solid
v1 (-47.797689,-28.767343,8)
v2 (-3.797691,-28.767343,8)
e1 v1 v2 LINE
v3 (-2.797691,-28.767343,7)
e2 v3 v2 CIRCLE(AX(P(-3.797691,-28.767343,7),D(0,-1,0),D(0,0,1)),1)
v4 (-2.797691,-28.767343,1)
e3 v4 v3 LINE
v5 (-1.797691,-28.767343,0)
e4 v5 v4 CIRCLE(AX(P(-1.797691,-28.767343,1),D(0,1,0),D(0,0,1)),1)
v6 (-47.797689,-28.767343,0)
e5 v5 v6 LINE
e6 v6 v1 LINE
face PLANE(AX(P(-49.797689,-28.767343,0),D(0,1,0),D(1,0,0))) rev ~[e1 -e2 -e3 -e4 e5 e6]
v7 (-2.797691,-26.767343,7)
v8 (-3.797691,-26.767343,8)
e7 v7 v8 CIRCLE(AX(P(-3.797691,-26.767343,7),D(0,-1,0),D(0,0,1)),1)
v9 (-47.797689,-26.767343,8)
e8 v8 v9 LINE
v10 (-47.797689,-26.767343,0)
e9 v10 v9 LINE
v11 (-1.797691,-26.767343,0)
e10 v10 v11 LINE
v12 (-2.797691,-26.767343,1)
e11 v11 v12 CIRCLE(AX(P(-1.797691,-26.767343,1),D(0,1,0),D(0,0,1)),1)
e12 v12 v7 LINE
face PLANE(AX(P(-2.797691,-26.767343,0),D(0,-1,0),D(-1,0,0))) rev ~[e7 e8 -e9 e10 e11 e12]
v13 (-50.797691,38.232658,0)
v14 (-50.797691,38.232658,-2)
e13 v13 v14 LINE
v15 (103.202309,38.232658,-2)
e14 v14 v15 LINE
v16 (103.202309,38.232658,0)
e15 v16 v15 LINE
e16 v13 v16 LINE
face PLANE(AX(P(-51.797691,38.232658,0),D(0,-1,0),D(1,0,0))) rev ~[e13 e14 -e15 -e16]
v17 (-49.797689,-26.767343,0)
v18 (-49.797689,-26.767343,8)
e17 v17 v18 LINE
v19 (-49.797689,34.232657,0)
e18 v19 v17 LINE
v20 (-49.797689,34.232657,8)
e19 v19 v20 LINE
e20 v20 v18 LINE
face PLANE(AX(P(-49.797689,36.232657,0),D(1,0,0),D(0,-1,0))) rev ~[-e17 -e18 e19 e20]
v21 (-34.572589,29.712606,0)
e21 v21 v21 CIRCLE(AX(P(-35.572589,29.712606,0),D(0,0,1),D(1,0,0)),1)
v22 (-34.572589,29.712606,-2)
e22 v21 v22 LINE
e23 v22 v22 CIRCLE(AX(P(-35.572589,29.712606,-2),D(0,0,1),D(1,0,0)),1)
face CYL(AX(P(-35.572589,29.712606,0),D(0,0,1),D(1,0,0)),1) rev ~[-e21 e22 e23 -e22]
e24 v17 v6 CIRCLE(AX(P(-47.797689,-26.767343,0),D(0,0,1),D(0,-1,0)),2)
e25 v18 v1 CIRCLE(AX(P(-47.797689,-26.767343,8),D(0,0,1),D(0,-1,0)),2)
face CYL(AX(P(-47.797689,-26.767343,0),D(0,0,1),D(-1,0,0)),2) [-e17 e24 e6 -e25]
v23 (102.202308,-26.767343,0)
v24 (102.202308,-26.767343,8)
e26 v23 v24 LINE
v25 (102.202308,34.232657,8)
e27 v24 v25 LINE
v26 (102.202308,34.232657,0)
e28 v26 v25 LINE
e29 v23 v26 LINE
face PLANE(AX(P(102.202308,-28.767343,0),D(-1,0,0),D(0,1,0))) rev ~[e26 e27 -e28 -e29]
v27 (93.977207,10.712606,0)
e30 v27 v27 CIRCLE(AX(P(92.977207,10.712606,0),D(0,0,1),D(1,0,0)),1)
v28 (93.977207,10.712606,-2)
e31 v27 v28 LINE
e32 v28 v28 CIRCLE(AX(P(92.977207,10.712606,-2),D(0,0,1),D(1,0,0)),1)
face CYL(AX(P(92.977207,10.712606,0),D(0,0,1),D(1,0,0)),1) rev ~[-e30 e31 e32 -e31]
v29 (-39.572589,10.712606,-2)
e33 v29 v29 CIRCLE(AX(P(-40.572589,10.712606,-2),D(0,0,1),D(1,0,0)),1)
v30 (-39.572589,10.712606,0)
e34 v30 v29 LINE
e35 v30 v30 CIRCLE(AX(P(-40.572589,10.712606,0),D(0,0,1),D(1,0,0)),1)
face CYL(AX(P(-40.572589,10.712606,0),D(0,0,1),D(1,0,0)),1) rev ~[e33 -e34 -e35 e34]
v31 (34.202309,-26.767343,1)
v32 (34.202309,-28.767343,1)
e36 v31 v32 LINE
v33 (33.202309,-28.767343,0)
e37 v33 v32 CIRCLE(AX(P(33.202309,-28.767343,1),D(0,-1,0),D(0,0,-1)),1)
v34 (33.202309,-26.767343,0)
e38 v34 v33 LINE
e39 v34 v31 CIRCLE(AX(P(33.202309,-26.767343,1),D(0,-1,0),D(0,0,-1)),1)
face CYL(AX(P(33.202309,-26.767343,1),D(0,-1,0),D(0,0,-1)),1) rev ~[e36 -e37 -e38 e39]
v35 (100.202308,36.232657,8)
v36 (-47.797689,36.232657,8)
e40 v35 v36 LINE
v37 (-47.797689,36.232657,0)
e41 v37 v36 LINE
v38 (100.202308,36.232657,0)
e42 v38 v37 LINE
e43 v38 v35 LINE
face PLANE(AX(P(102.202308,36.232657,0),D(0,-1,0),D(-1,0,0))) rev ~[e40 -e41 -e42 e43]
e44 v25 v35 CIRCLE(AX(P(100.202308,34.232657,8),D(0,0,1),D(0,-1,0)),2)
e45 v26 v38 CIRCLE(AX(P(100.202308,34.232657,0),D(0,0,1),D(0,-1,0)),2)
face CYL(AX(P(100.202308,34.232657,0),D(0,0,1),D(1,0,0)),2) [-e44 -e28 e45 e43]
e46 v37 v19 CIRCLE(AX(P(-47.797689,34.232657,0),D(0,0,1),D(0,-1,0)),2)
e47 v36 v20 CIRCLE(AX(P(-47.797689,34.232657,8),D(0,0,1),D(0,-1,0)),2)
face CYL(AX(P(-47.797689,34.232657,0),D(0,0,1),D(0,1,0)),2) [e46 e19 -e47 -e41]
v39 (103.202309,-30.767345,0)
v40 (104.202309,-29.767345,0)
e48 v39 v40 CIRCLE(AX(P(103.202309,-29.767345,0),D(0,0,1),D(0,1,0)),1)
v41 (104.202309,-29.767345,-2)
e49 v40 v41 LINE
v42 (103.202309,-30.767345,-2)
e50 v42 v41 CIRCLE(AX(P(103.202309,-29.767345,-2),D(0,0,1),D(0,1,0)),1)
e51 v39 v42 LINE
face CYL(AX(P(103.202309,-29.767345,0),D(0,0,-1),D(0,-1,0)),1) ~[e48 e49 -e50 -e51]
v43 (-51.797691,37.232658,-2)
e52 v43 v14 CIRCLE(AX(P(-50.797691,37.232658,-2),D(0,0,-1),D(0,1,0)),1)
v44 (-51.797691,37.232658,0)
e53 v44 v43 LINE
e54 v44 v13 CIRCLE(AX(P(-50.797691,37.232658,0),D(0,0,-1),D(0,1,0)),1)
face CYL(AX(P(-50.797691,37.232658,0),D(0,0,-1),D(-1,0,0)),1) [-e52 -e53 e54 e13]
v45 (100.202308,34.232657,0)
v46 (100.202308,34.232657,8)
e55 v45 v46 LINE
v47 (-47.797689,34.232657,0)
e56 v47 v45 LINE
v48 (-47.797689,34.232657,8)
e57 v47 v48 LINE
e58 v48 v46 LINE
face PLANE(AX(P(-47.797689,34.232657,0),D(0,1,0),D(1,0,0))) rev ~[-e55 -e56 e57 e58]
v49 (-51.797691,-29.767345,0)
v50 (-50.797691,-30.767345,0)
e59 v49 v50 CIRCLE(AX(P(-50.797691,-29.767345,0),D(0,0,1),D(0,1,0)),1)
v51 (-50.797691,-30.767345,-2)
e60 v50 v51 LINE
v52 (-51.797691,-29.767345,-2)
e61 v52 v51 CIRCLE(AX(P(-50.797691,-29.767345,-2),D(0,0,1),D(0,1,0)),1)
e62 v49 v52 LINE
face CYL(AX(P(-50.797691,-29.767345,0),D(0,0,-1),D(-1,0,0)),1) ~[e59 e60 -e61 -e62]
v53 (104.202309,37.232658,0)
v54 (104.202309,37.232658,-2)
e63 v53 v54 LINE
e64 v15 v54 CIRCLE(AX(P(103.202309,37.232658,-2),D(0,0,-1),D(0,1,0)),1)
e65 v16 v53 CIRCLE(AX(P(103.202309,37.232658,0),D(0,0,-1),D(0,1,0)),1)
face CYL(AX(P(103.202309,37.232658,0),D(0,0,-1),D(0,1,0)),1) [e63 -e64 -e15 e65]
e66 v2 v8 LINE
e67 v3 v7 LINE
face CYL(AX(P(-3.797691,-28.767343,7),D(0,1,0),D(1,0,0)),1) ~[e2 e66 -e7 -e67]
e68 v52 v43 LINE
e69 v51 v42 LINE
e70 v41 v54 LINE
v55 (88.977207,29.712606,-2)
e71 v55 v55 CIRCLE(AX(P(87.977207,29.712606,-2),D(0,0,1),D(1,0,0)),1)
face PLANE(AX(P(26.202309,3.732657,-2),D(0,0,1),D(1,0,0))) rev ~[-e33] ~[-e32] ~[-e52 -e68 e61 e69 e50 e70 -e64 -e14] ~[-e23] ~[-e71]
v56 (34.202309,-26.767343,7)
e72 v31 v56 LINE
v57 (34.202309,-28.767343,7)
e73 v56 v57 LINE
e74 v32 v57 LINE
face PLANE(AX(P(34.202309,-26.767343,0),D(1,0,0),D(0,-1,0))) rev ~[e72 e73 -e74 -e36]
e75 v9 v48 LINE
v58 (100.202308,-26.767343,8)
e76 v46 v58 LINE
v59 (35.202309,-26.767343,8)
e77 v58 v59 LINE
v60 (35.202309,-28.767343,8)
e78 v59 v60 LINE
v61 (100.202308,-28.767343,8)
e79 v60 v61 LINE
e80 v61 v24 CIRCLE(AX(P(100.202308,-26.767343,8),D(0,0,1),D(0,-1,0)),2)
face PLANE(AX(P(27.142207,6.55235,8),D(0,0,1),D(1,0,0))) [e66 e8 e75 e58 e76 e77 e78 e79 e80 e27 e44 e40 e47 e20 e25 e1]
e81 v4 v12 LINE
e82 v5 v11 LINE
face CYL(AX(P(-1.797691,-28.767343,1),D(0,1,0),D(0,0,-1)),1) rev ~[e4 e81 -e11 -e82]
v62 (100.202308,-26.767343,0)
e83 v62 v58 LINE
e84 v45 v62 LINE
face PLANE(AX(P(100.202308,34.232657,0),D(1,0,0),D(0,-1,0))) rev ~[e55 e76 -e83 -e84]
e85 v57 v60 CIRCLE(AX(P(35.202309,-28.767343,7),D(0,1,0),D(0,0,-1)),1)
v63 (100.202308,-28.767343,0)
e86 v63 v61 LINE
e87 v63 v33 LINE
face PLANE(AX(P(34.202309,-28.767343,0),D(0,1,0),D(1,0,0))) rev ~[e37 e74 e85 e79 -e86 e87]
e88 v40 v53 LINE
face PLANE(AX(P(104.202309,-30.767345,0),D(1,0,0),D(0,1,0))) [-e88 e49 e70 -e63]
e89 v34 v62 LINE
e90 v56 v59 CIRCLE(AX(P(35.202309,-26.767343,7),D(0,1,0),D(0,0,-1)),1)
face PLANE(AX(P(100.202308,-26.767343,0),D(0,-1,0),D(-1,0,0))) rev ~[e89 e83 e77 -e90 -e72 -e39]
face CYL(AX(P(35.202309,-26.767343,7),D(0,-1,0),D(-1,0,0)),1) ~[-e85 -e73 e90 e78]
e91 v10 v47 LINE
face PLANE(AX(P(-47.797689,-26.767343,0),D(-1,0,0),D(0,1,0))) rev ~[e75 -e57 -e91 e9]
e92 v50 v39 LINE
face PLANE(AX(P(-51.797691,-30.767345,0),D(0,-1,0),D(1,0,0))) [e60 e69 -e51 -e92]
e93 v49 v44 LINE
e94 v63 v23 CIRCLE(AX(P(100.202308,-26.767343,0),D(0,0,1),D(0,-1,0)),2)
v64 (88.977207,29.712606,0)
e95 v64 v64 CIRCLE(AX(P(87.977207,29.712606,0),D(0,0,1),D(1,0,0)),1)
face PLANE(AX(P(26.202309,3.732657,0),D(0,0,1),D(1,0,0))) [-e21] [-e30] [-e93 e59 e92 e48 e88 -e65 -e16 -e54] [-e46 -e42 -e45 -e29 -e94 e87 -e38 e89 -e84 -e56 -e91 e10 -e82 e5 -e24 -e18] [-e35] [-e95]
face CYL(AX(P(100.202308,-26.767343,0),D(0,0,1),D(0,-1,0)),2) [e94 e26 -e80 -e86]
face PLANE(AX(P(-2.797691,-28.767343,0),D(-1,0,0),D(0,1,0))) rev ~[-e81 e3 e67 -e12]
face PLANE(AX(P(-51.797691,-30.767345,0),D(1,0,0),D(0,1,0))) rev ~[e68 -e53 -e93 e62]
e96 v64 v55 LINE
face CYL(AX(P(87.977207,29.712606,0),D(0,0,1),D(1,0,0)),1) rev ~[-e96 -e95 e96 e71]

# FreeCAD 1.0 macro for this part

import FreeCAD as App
import Part
import Sketcher

V = App.Vector


def edges_at(feature, points):
    """Names of the edges that pass closest to the given points."""
    edges = feature.Shape.Edges
    near = lambda p: min(range(len(edges)), key=lambda i: edges[i].distToShape(Part.Vertex(*p))[0])
    return sorted({f"Edge{near(p) + 1}" for p in points})

doc = App.newDocument("Part")
body = doc.addObject("PartDesign::Body", "Body")

# Sketch on XY plane
sketch1 = body.newObject("Sketcher::SketchObject", "Sketch")
sketch1.AttachmentSupport = (doc.getObject("XY_Plane"), [""])
sketch1.MapMode = "FlatFace"
sketch1.addGeometry(Part.LineSegment(V(-51.797691, 38.232658, 0), V(-51.797691, -30.767345, 0)), False)
sketch1.addGeometry(Part.LineSegment(V(-51.797691, -30.767345, 0), V(104.202309, -30.767345, 0)), False)
sketch1.addGeometry(Part.LineSegment(V(104.202309, -30.767345, 0), V(104.202309, 38.232658, 0)), False)
sketch1.addGeometry(Part.LineSegment(V(104.202309, 38.232658, 0), V(-51.797691, 38.232658, 0)), False)
sketch1.addGeometry(Part.Circle(V(-40.572589, 10.712606, 0), V(0, 0, 1), 1), False)
sketch1.addGeometry(Part.Circle(V(-35.572589, 29.712606, 0), V(0, 0, 1), 1), False)
sketch1.addGeometry(Part.Circle(V(92.977207, 10.712606, 0), V(0, 0, 1), 1), False)
sketch1.addGeometry(Part.Circle(V(87.977207, 29.712606, 0), V(0, 0, 1), 1), False)
sketch1.addConstraint(Sketcher.Constraint("Coincident", 0, 2, 1, 1))
sketch1.addConstraint(Sketcher.Constraint("Coincident", 1, 2, 2, 1))
sketch1.addConstraint(Sketcher.Constraint("Coincident", 2, 2, 3, 1))
sketch1.addConstraint(Sketcher.Constraint("Coincident", 3, 2, 0, 1))
sketch1.addConstraint(Sketcher.Constraint("Vertical", 0))
sketch1.addConstraint(Sketcher.Constraint("Horizontal", 1))
sketch1.addConstraint(Sketcher.Constraint("Vertical", 2))
sketch1.addConstraint(Sketcher.Constraint("Horizontal", 3))
sketch1.addConstraint(Sketcher.Constraint("Equal", 4, 5))
sketch1.addConstraint(Sketcher.Constraint("Equal", 5, 6))
sketch1.addConstraint(Sketcher.Constraint("Equal", 6, 7))
sketch1.addConstraint(Sketcher.Constraint("Horizontal", 4, 3, 6, 3))
sketch1.addConstraint(Sketcher.Constraint("Horizontal", 5, 3, 7, 3))
sketch1.addConstraint(Sketcher.Constraint("Diameter", 4, 2.0))
sketch1.addConstraint(Sketcher.Constraint("DistanceX", 1, 1, 1, 2, 156.0))
sketch1.addConstraint(Sketcher.Constraint("DistanceX", 4, 3, 5, 3, 5.0))
sketch1.addConstraint(Sketcher.Constraint("DistanceY", 4, 3, 5, 3, 19.0))
sketch1.addConstraint(Sketcher.Constraint("DistanceX", 7, 3, 6, 3, 5.0))
sketch1.addConstraint(Sketcher.Constraint("DistanceX", 0, 2, 5, 3, 16.225102))
sketch1.addConstraint(Sketcher.Constraint("DistanceX", 0, 2, 6, 3, 144.774898))
sketch1.addConstraint(Sketcher.Constraint("DistanceY", 0, 2, 0, 1, 69.000003))
sketch1.addConstraint(Sketcher.Constraint("DistanceX", 4, 3, -1, 1, 40.572589))
sketch1.addConstraint(Sketcher.Constraint("DistanceY", -1, 1, 2, 2, 38.232658))
sketch1.addConstraint(Sketcher.Constraint("DistanceY", 0, 2, 4, 3, 41.479951))
pad1 = body.newObject("PartDesign::Pad", "Pad")
pad1.Profile = sketch1
pad1.Length = 2
pad1.Reversed = True

# Sketch on XY plane
sketch2 = body.newObject("Sketcher::SketchObject", "Sketch001")
sketch2.AttachmentSupport = (doc.getObject("XY_Plane"), [""])
sketch2.MapMode = "FlatFace"
sketch2.addGeometry(Part.LineSegment(V(102.202308, -28.767343, 0), V(102.202308, 36.232657, 0)), False)
sketch2.addGeometry(Part.LineSegment(V(102.202308, 36.232657, 0), V(-49.797689, 36.232657, 0)), False)
sketch2.addGeometry(Part.LineSegment(V(-49.797689, 36.232657, 0), V(-49.797689, -28.767343, 0)), False)
sketch2.addGeometry(Part.LineSegment(V(-49.797689, -28.767343, 0), V(-2.797691, -28.767343, 0)), False)
sketch2.addGeometry(Part.LineSegment(V(-2.797691, -28.767343, 0), V(-2.797691, -26.767343, 0)), False)
sketch2.addGeometry(Part.LineSegment(V(-2.797691, -26.767343, 0), V(-47.797689, -26.767343, 0)), False)
sketch2.addGeometry(Part.LineSegment(V(-47.797689, -26.767343, 0), V(-47.797689, 34.232657, 0)), False)
sketch2.addGeometry(Part.LineSegment(V(-47.797689, 34.232657, 0), V(100.202308, 34.232657, 0)), False)
sketch2.addGeometry(Part.LineSegment(V(100.202308, 34.232657, 0), V(100.202308, -26.767343, 0)), False)
sketch2.addGeometry(Part.LineSegment(V(100.202308, -26.767343, 0), V(34.202309, -26.767343, 0)), False)
sketch2.addGeometry(Part.LineSegment(V(34.202309, -26.767343, 0), V(34.202309, -28.767343, 0)), False)
sketch2.addGeometry(Part.LineSegment(V(34.202309, -28.767343, 0), V(102.202308, -28.767343, 0)), False)
sketch2.addConstraint(Sketcher.Constraint("Coincident", 0, 2, 1, 1))
sketch2.addConstraint(Sketcher.Constraint("Coincident", 1, 2, 2, 1))
sketch2.addConstraint(Sketcher.Constraint("Coincident", 2, 2, 3, 1))
sketch2.addConstraint(Sketcher.Constraint("Coincident", 3, 2, 4, 1))
sketch2.addConstraint(Sketcher.Constraint("Coincident", 4, 2, 5, 1))
sketch2.addConstraint(Sketcher.Constraint("Coincident", 5, 2, 6, 1))
sketch2.addConstraint(Sketcher.Constraint("Coincident", 6, 2, 7, 1))
sketch2.addConstraint(Sketcher.Constraint("Coincident", 7, 2, 8, 1))
sketch2.addConstraint(Sketcher.Constraint("Coincident", 8, 2, 9, 1))
sketch2.addConstraint(Sketcher.Constraint("Coincident", 9, 2, 10, 1))
sketch2.addConstraint(Sketcher.Constraint("Coincident", 10, 2, 11, 1))
sketch2.addConstraint(Sketcher.Constraint("Coincident", 11, 2, 0, 1))
sketch2.addConstraint(Sketcher.Constraint("Vertical", 0))
sketch2.addConstraint(Sketcher.Constraint("Horizontal", 1))
sketch2.addConstraint(Sketcher.Constraint("Vertical", 2))
sketch2.addConstraint(Sketcher.Constraint("Horizontal", 3))
sketch2.addConstraint(Sketcher.Constraint("Vertical", 4))
sketch2.addConstraint(Sketcher.Constraint("Horizontal", 5))
sketch2.addConstraint(Sketcher.Constraint("Vertical", 6))
sketch2.addConstraint(Sketcher.Constraint("Horizontal", 7))
sketch2.addConstraint(Sketcher.Constraint("Vertical", 8))
sketch2.addConstraint(Sketcher.Constraint("Horizontal", 9))
sketch2.addConstraint(Sketcher.Constraint("Vertical", 10))
sketch2.addConstraint(Sketcher.Constraint("Horizontal", 11))
sketch2.addConstraint(Sketcher.Constraint("Horizontal", 5, 2, 8, 2))
sketch2.addConstraint(Sketcher.Constraint("Horizontal", 3, 2, 10, 2))
sketch2.addConstraint(Sketcher.Constraint("DistanceX", 9, 2, 9, 1, 65.999999))
sketch2.addConstraint(Sketcher.Constraint("DistanceX", 11, 1, 11, 2, 67.999999))
sketch2.addConstraint(Sketcher.Constraint("DistanceY", 0, 1, 0, 2, 65.0))
sketch2.addConstraint(Sketcher.Constraint("DistanceY", 4, 1, 4, 2, 2.0))
sketch2.addConstraint(Sketcher.Constraint("DistanceY", 6, 1, 6, 2, 61.0))
sketch2.addConstraint(Sketcher.Constraint("DistanceX", 3, 2, 0, 2, 104.999999))
sketch2.addConstraint(Sketcher.Constraint("DistanceX", 2, 2, 5, 2, 2.0))
sketch2.addConstraint(Sketcher.Constraint("DistanceX", 5, 2, 9, 2, 81.999998))
sketch2.addConstraint(Sketcher.Constraint("DistanceX", -1, 1, 0, 2, 102.202308))
sketch2.addConstraint(Sketcher.Constraint("DistanceY", -1, 1, 0, 2, 36.232657))
pad2 = body.newObject("PartDesign::Pad", "Pad001")
pad2.Profile = sketch2
pad2.Length = 8
doc.recompute()

fillet = body.newObject("PartDesign::Fillet", "Fillet")
fillet.Base = (pad2, edges_at(pad2, [
    (-51.798, 38.233, -1),
    (-51.798, -30.767, -1),
    (104.202, -30.767, -1),
    (104.202, 38.233, -1),
    (34.202, -27.767, 8),
    (-2.798, -27.767, 8),
    (34.202, -27.767, 0),
    (-2.798, -27.767, 0),
]))
fillet.Radius = 1
doc.recompute()

fillet2 = body.newObject("PartDesign::Fillet", "Fillet001")
fillet2.Base = (fillet, edges_at(fillet, [
    (-49.798, -28.767, 4),
    (102.202, -28.767, 4),
    (102.202, 36.233, 4),
    (-49.798, 36.233, 4),
]))
fillet2.Radius = 2

doc.recompute()
